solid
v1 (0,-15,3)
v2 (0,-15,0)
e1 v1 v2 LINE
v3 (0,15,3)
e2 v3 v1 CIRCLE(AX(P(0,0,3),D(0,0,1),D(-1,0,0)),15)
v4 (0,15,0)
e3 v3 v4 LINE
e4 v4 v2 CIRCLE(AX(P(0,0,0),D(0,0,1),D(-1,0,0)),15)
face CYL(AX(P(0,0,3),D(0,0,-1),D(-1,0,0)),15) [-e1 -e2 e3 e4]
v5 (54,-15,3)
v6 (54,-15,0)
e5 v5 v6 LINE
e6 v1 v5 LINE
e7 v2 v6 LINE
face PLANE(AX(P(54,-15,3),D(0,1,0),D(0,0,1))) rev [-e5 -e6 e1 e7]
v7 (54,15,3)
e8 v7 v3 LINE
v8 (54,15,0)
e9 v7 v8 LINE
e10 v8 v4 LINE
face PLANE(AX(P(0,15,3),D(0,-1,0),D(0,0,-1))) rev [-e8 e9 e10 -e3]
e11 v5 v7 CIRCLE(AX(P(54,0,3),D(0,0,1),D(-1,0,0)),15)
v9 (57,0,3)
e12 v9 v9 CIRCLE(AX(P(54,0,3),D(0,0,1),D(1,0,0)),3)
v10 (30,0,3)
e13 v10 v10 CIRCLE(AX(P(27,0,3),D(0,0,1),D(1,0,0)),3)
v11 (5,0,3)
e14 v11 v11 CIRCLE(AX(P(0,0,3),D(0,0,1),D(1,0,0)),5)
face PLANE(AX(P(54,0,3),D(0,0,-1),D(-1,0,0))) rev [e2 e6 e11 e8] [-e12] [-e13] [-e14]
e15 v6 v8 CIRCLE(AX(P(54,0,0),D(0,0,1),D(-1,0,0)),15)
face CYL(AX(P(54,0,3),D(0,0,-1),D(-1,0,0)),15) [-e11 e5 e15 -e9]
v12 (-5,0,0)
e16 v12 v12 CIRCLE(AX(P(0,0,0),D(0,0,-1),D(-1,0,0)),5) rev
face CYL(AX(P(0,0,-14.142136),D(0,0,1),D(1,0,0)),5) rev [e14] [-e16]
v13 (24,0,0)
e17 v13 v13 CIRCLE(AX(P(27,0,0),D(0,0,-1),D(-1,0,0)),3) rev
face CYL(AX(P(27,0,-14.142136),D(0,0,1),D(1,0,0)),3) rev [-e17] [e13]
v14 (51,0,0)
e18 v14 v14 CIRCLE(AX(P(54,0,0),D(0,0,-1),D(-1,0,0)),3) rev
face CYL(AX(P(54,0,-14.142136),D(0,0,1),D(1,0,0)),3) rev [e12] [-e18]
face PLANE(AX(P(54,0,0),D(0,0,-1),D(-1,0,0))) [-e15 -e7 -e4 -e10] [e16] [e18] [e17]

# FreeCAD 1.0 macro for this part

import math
import FreeCAD as App
import Part
import Sketcher
from FreeCAD import Vector
Q = App.Units.Quantity

doc = App.newDocument("Part")
body = doc.addObject("PartDesign::Body", "Body")

# Sketch on XY plane
sketch1 = body.newObject("Sketcher::SketchObject", "Sketch")
sketch1.AttachmentSupport = (doc.getObject("XY_Plane"), [""])
sketch1.MapMode = "FlatFace"
sketch1.addGeometry([
    Part.LineSegment(Vector(54, 15, 0), Vector(0, 15, 0)),
    Part.ArcOfCircle(Part.Circle(Vector(0, 0, 0), Vector(0, 0, 1), 15), math.radians(90), math.radians(270)),
    Part.LineSegment(Vector(0, -15, 0), Vector(54, -15, 0)),
    Part.ArcOfCircle(Part.Circle(Vector(54, 0, 0), Vector(0, 0, 1), 15), math.radians(-90), math.radians(90)),
], False)
sketch1.addConstraint([
    Sketcher.Constraint("Tangent", 0, 2, 1, 1),
    Sketcher.Constraint("Tangent", 1, 2, 2, 1),
    Sketcher.Constraint("Tangent", 2, 2, 3, 1),
    Sketcher.Constraint("Tangent", 3, 2, 0, 1),
    Sketcher.Constraint("Horizontal", 0),
    Sketcher.Constraint("Horizontal", 2),
    Sketcher.Constraint("Coincident", 1, 3, -1, 1),
    Sketcher.Constraint("Radius", 1, Q("15 mm")),
    Sketcher.Constraint("DistanceX", 0, 2, 0, 1, Q("54 mm")),
])
pad1 = body.newObject("PartDesign::Pad", "Pad")
pad1.Profile = sketch1
pad1.Length = 3

# Sketch on XY plane
sketch2 = body.newObject("Sketcher::SketchObject", "Sketch001")
sketch2.AttachmentSupport = (doc.getObject("XY_Plane"), [""])
sketch2.MapMode = "FlatFace"
sketch2.AttachmentOffset = App.Placement(Vector(0, 0, 3), App.Rotation())
sketch2.addGeometry([
    Part.Circle(Vector(0, 0, 0), Vector(0, 0, 1), 5),
    Part.Circle(Vector(27, 0, 0), Vector(0, 0, 1), 3),
    Part.Circle(Vector(54, 0, 0), Vector(0, 0, 1), 3),
], False)
sketch2.addConstraint([
    Sketcher.Constraint("Coincident", 0, 3, -1, 1),
    Sketcher.Constraint("Equal", 1, 2),
    Sketcher.Constraint("PointOnObject", 1, 3, -1),
    Sketcher.Constraint("PointOnObject", 2, 3, -1),
    Sketcher.Constraint("Diameter", 0, Q("10 mm")),
    Sketcher.Constraint("Diameter", 1, Q("6 mm")),
    Sketcher.Constraint("DistanceX", -1, 1, 1, 3, Q("27 mm")),
    Sketcher.Constraint("DistanceX", -1, 1, 2, 3, Q("54 mm")),
])
pocket1 = body.newObject("PartDesign::Pocket", "Pocket")
pocket1.Profile = sketch2
pocket1.Length = 3

doc.recompute()
